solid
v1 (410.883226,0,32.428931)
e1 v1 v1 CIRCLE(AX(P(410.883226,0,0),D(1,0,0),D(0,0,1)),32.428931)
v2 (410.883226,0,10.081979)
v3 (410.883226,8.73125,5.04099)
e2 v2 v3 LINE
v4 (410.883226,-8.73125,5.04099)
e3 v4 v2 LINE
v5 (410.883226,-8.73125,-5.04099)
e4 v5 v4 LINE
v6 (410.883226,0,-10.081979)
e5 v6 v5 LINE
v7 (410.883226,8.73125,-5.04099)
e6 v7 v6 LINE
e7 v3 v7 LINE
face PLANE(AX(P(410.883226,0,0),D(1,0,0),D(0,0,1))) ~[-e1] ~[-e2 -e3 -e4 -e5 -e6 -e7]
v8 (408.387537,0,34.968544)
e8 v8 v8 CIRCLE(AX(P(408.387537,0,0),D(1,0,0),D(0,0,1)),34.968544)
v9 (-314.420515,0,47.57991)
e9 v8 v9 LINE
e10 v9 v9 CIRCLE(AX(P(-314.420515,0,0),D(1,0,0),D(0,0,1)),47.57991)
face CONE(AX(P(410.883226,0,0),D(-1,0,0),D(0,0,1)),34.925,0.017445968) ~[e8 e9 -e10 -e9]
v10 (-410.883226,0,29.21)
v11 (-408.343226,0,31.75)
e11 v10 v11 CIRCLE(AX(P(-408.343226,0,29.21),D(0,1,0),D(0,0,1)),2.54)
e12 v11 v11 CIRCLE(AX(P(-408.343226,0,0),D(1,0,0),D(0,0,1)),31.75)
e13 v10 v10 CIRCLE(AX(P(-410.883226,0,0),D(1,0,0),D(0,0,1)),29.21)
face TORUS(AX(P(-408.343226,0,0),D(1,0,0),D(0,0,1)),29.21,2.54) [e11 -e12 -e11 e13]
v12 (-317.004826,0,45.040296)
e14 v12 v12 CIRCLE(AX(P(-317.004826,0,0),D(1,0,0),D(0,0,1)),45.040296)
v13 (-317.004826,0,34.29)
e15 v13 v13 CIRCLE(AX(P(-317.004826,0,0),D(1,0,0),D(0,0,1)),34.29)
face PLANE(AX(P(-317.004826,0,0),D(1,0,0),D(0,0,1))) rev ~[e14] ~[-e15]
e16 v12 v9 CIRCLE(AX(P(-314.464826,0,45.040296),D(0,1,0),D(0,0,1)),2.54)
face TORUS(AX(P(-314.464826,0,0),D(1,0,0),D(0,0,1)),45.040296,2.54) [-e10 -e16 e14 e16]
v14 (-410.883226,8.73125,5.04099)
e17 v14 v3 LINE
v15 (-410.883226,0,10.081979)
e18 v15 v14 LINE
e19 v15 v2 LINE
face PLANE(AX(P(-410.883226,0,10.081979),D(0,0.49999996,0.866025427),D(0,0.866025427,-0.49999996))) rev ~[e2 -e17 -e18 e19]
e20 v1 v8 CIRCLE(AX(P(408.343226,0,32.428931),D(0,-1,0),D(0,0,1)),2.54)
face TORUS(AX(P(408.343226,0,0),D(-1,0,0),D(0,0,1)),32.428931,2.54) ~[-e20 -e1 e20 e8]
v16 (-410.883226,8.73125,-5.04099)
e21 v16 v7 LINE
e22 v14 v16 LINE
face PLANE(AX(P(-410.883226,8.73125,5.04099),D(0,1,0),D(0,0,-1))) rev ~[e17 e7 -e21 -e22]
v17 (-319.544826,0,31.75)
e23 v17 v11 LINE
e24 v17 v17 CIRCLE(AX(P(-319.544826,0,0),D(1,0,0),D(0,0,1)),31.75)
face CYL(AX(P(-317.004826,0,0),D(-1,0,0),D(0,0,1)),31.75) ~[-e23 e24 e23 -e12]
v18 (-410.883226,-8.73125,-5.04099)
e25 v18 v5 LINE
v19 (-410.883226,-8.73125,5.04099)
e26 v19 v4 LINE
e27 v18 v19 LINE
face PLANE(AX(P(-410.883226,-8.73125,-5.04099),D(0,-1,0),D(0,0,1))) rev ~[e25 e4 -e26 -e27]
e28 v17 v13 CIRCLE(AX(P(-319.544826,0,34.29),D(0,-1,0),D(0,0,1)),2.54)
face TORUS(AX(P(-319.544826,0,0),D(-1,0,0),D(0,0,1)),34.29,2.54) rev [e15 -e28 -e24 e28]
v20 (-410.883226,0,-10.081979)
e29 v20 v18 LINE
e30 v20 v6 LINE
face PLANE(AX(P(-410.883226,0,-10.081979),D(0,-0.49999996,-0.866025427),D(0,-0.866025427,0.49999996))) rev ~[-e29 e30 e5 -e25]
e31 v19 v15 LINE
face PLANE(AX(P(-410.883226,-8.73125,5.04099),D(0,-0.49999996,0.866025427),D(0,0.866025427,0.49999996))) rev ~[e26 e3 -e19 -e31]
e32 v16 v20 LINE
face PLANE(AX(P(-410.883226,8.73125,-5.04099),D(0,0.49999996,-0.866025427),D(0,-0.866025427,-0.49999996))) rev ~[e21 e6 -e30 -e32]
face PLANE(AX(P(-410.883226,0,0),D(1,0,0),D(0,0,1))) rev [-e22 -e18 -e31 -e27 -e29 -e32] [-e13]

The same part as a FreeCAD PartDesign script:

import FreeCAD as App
import Part
import Sketcher
from FreeCAD import Vector
Q = App.Units.Quantity


def edges_at(feature, points):
    """Names of the edges that pass closest to the given points."""
    edges = feature.Shape.Edges
    near = lambda p: min(range(len(edges)), key=lambda i: edges[i].distToShape(Part.Vertex(*p))[0])
    return sorted({f"Edge{near(p) + 1}" for p in points})

doc = App.newDocument("Part")
body = doc.addObject("PartDesign::Body", "Body")

# Sketch on XZ plane
sketch1 = body.newObject("Sketcher::SketchObject", "Sketch")
sketch1.AttachmentSupport = (doc.getObject("XZ_Plane"), [""])
sketch1.MapMode = "FlatFace"
sketch1.addGeometry([
    Part.LineSegment(Vector(-411, 32, 0), Vector(-411, 0, 0)),  # 0
    Part.LineSegment(Vector(-411, 0, 0), Vector(411, 0, 0)),  # 1
    Part.LineSegment(Vector(411, 0, 0), Vector(411, 35, 0)),  # 2
    Part.LineSegment(Vector(411, 35, 0), Vector(-317, 48, 0)),  # 3
    Part.LineSegment(Vector(-317, 48, 0), Vector(-317, 32, 0)),  # 4
    Part.LineSegment(Vector(-317, 32, 0), Vector(-411, 32, 0)),  # 5
], False)
sketch1.addConstraint([
    Sketcher.Constraint("Coincident", 0, 2, 1, 1),
    Sketcher.Constraint("Coincident", 1, 2, 2, 1),
    Sketcher.Constraint("Coincident", 2, 2, 3, 1),
    Sketcher.Constraint("Coincident", 3, 2, 4, 1),
    Sketcher.Constraint("Coincident", 4, 2, 5, 1),
    Sketcher.Constraint("Coincident", 5, 2, 0, 1),
    Sketcher.Constraint("Vertical", 0),
    Sketcher.Constraint("Horizontal", 1),
    Sketcher.Constraint("Vertical", 2),
    Sketcher.Constraint("Vertical", 4),
    Sketcher.Constraint("Horizontal", 5),
    Sketcher.Constraint("Symmetric", 0, 2, 1, 2, -1, 1),
    Sketcher.Constraint("DistanceY", 0, 2, 0, 1, Q("1.25 in")),
    Sketcher.Constraint("DistanceY", 2, 2, 3, 2, Q("0.5 in")),
    Sketcher.Constraint("DistanceX", 5, 2, 5, 1, Q("3.696 in")),
    Sketcher.Constraint("DistanceY", 2, 1, 2, 2, Q("1.375 in")),
    Sketcher.Constraint("DistanceX", 1, 1, 1, 2, Q("821.766452 mm")),
])
revolution = body.newObject("PartDesign::Revolution", "Revolution")
revolution.Profile = sketch1
revolution.ReferenceAxis = (sketch1, ["H_Axis"])
revolution.Angle = 360

# Sketch on YZ plane
sketch2 = body.newObject("Sketcher::SketchObject", "Sketch001")
sketch2.AttachmentSupport = (doc.getObject("YZ_Plane"), [""])
sketch2.MapMode = "FlatFace"
sketch2.AttachmentOffset = App.Placement(Vector(0, 0, -410.883226), App.Rotation())
sketch2.addGeometry([
    Part.LineSegment(Vector(0, 10, 0), Vector(9, 5, 0)),  # 0
    Part.LineSegment(Vector(9, 5, 0), Vector(9, -5, 0)),  # 1
    Part.LineSegment(Vector(9, -5, 0), Vector(0, -10, 0)),  # 2
    Part.LineSegment(Vector(0, -10, 0), Vector(-9, -5, 0)),  # 3
    Part.LineSegment(Vector(-9, -5, 0), Vector(-9, 5, 0)),  # 4
    Part.LineSegment(Vector(-9, 5, 0), Vector(0, 10, 0)),  # 5
], False)
sketch2.addConstraint([
    Sketcher.Constraint("Coincident", 0, 2, 1, 1),
    Sketcher.Constraint("Coincident", 1, 2, 2, 1),
    Sketcher.Constraint("Coincident", 2, 2, 3, 1),
    Sketcher.Constraint("Coincident", 3, 2, 4, 1),
    Sketcher.Constraint("Coincident", 4, 2, 5, 1),
    Sketcher.Constraint("Coincident", 5, 2, 0, 1),
    Sketcher.Constraint("Vertical", 1),
    Sketcher.Constraint("Vertical", 4),
    Sketcher.Constraint("Symmetric", 0, 2, 3, 2, -1, 1),
    Sketcher.Constraint("Symmetric", 2, 2, 5, 2, -1, 1),
    Sketcher.Constraint("PointOnObject", 2, 2, -2),
    Sketcher.Constraint("Parallel", 2, 5),
    Sketcher.Constraint("Horizontal", 1, 2, 3, 2),
    Sketcher.Constraint("Angle", 0, Q("-29.999997 deg")),
    Sketcher.Constraint("DistanceX", -1, 1, 0, 2, Q("0.34375 in")),
    Sketcher.Constraint("DistanceY", 1, 2, 1, 1, Q("10.08198 mm")),
])
pocket1 = body.newObject("PartDesign::Pocket", "Pocket")
pocket1.Profile = sketch2
pocket1.Type = "ThroughAll"
pocket1.Reversed = True
doc.recompute()

fillet = body.newObject("PartDesign::Fillet", "Fillet")
fillet.Base = (pocket1, edges_at(pocket1, [
    (-317.005, 0, -47.625),
    (-410.883, 0, -31.75),
    (410.883, 0, -34.925),
    (-317.005, 0, -31.75),
]))
fillet.Radius = Q("0.1 in")

doc.recompute()
